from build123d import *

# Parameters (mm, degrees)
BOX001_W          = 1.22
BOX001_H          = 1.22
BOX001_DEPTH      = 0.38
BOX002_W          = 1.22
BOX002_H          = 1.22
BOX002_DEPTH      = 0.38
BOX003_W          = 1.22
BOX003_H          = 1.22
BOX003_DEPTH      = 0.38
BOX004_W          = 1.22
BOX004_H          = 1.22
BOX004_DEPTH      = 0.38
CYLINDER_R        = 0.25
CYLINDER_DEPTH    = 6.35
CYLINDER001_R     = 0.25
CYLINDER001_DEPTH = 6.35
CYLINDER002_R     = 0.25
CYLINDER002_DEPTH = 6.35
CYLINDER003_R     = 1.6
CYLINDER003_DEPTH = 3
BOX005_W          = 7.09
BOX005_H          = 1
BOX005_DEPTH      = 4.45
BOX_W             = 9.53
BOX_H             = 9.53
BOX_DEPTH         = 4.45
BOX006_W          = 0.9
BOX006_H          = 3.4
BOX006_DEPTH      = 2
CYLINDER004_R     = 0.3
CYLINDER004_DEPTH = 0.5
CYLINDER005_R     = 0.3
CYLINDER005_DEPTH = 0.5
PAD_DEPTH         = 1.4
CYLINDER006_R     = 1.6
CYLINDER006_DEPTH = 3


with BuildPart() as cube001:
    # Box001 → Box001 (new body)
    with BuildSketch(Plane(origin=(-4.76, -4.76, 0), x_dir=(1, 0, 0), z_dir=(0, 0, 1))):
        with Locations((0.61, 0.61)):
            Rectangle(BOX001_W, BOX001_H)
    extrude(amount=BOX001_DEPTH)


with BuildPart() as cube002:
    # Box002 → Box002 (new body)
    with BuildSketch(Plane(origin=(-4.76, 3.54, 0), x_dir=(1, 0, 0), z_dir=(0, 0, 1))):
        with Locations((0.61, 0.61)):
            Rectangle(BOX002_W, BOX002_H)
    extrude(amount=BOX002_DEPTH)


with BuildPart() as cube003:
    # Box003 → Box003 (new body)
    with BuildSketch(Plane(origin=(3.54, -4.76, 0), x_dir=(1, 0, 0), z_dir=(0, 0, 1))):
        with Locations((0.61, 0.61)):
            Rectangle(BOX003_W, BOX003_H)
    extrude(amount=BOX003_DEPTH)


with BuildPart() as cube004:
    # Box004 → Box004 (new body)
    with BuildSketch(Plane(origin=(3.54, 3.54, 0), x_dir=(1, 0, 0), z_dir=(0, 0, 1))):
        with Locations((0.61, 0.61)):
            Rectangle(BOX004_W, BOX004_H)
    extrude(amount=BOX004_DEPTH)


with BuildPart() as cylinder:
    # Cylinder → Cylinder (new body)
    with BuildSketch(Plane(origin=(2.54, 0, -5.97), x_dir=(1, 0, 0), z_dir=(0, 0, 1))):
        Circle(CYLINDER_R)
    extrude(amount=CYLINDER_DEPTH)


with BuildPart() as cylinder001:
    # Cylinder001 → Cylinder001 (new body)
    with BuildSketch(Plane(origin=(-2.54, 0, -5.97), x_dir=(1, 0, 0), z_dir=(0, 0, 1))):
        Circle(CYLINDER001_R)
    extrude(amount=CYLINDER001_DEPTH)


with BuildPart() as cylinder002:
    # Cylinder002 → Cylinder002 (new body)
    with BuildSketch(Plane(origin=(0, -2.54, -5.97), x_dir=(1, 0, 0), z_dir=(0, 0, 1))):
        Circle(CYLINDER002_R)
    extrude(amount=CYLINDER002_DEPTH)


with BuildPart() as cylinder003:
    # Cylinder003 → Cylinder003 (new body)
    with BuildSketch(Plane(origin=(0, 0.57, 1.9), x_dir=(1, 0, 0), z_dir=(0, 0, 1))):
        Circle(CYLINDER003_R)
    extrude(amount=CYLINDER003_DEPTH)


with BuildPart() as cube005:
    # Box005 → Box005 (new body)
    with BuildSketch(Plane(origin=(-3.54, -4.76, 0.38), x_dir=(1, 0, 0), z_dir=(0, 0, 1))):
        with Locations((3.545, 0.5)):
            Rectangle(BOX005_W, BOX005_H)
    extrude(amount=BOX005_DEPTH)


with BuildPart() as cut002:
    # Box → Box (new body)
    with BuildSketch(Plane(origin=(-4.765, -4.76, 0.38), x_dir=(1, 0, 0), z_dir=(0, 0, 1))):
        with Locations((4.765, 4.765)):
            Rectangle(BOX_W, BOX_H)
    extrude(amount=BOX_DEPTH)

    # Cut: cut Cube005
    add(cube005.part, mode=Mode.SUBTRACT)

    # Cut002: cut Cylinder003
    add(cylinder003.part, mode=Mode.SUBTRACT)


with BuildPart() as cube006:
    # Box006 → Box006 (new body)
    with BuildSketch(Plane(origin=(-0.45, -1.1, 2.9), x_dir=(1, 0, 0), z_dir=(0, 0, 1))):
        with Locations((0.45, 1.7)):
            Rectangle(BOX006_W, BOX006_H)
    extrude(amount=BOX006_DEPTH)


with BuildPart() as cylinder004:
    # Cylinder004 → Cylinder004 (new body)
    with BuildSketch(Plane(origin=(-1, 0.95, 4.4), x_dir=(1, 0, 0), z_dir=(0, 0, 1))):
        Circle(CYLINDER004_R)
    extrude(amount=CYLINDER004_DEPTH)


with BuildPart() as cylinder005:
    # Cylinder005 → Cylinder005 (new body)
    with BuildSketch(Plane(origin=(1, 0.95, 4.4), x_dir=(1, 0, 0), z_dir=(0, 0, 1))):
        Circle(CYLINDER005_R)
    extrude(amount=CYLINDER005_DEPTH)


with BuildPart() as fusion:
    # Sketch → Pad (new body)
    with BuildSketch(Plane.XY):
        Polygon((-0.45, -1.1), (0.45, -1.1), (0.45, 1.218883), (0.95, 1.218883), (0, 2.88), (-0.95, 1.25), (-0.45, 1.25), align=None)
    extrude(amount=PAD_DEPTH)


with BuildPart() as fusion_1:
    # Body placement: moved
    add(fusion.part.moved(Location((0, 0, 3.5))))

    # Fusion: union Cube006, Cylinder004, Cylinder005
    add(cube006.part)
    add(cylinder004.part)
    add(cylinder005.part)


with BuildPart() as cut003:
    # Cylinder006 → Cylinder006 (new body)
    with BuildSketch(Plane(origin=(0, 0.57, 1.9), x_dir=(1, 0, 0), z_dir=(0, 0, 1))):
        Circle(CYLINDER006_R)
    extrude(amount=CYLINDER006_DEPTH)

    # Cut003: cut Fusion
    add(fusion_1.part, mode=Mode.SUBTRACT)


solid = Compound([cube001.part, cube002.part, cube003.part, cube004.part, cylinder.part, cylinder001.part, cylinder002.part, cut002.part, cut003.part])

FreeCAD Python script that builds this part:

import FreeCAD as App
import Part
import Sketcher

V = App.Vector


def add_polygon(sketch, points):
    """Adds a closed chain of lines whose ends are joined by coincident constraints."""
    first, n = sketch.GeometryCount, len(points)
    for a, b in zip(points, points[1:] + points[:1]):
        sketch.addGeometry(Part.LineSegment(App.Vector(*a, 0), App.Vector(*b, 0)), False)
    for i in range(n):
        sketch.addConstraint(Sketcher.Constraint("Coincident", first + i, 2, first + (i + 1) % n, 1))

doc = App.newDocument("Part")
body = doc.addObject("PartDesign::Body", "Body")

sketch1 = body.newObject("Sketcher::SketchObject", "Sketch")
sketch1.AttachmentSupport = (doc.getObject("XY_Plane"), [""])
sketch1.MapMode = "FlatFace"
add_polygon(sketch1, [(-4.8, -3.5), (-4.8, -4.8), (-3.5, -4.8), (-3.5, -3.5)])
sketch1.addConstraint(Sketcher.Constraint("Vertical", 0))
sketch1.addConstraint(Sketcher.Constraint("Horizontal", 1))
sketch1.addConstraint(Sketcher.Constraint("Vertical", 2))
sketch1.addConstraint(Sketcher.Constraint("Horizontal", 3))
sketch1.addConstraint(Sketcher.Constraint("Equal", 3, 0))
sketch1.addConstraint(Sketcher.Constraint("DistanceX", 1, 1, 1, 2, 1.22))
sketch1.addConstraint(Sketcher.Constraint("DistanceX", 0, 2, -1, 1, 4.76))
sketch1.addConstraint(Sketcher.Constraint("DistanceY", 0, 2, -1, 1, 4.76))
pad1 = body.newObject("PartDesign::Pad", "Pad")
pad1.Profile = sketch1
pad1.Length = 0.38
body2 = doc.addObject("PartDesign::Body", "Body001")

sketch2 = body2.newObject("Sketcher::SketchObject", "Sketch001")
sketch2.AttachmentSupport = (doc.getObject("XY_Plane001"), [""])
sketch2.MapMode = "FlatFace"
add_polygon(sketch2, [(-4.8, 4.8), (-4.8, 3.5), (-3.5, 3.5), (-3.5, 4.8)])
sketch2.addConstraint(Sketcher.Constraint("Vertical", 0))
sketch2.addConstraint(Sketcher.Constraint("Horizontal", 1))
sketch2.addConstraint(Sketcher.Constraint("Vertical", 2))
sketch2.addConstraint(Sketcher.Constraint("Horizontal", 3))
sketch2.addConstraint(Sketcher.Constraint("Equal", 3, 0))
sketch2.addConstraint(Sketcher.Constraint("DistanceX", 1, 1, 1, 2, 1.22))
sketch2.addConstraint(Sketcher.Constraint("DistanceX", 0, 2, -1, 1, 4.76))
sketch2.addConstraint(Sketcher.Constraint("DistanceY", -1, 1, 0, 2, 3.54))
pad2 = body2.newObject("PartDesign::Pad", "Pad001")
pad2.Profile = sketch2
pad2.Length = 0.38
body3 = doc.addObject("PartDesign::Body", "Body002")

sketch3 = body3.newObject("Sketcher::SketchObject", "Sketch002")
sketch3.AttachmentSupport = (doc.getObject("XY_Plane002"), [""])
sketch3.MapMode = "FlatFace"
add_polygon(sketch3, [(3.5, -3.5), (3.5, -4.8), (4.8, -4.8), (4.8, -3.5)])
sketch3.addConstraint(Sketcher.Constraint("Vertical", 0))
sketch3.addConstraint(Sketcher.Constraint("Horizontal", 1))
sketch3.addConstraint(Sketcher.Constraint("Vertical", 2))
sketch3.addConstraint(Sketcher.Constraint("Horizontal", 3))
sketch3.addConstraint(Sketcher.Constraint("Equal", 3, 0))
sketch3.addConstraint(Sketcher.Constraint("DistanceX", 1, 1, 1, 2, 1.22))
sketch3.addConstraint(Sketcher.Constraint("DistanceX", -1, 1, 0, 2, 3.54))
sketch3.addConstraint(Sketcher.Constraint("DistanceY", 0, 2, -1, 1, 4.76))
pad3 = body3.newObject("PartDesign::Pad", "Pad002")
pad3.Profile = sketch3
pad3.Length = 0.38
body4 = doc.addObject("PartDesign::Body", "Body003")

sketch4 = body4.newObject("Sketcher::SketchObject", "Sketch003")
sketch4.AttachmentSupport = (doc.getObject("XY_Plane003"), [""])
sketch4.MapMode = "FlatFace"
add_polygon(sketch4, [(3.5, 4.8), (3.5, 3.5), (4.8, 3.5), (4.8, 4.8)])
sketch4.addConstraint(Sketcher.Constraint("Vertical", 0))
sketch4.addConstraint(Sketcher.Constraint("Horizontal", 1))
sketch4.addConstraint(Sketcher.Constraint("Vertical", 2))
sketch4.addConstraint(Sketcher.Constraint("Horizontal", 3))
sketch4.addConstraint(Sketcher.Constraint("Equal", 3, 0))
sketch4.addConstraint(Sketcher.Constraint("DistanceX", 1, 1, 1, 2, 1.22))
sketch4.addConstraint(Sketcher.Constraint("DistanceX", -1, 1, 0, 2, 3.54))
sketch4.addConstraint(Sketcher.Constraint("DistanceY", -1, 1, 0, 2, 3.54))
pad4 = body4.newObject("PartDesign::Pad", "Pad003")
pad4.Profile = sketch4
pad4.Length = 0.38
body5 = doc.addObject("PartDesign::Body", "Body004")

sketch5 = body5.newObject("Sketcher::SketchObject", "Sketch004")
sketch5.AttachmentSupport = (doc.getObject("XY_Plane004"), [""])
sketch5.MapMode = "FlatFace"
sketch5.AttachmentOffset = App.Placement(V(0, 0, -5.97), App.Rotation())
sketch5.addGeometry(Part.Circle(V(2.54, 0, 0), V(0, 0, 1), 0.25), False)
sketch5.addConstraint(Sketcher.Constraint("PointOnObject", 0, 3, -1))
sketch5.addConstraint(Sketcher.Constraint("Diameter", 0, 0.5))
sketch5.addConstraint(Sketcher.Constraint("DistanceX", -1, 1, 0, 3, 2.54))
pad5 = body5.newObject("PartDesign::Pad", "Pad004")
pad5.Profile = sketch5
pad5.Length = 6.35
body6 = doc.addObject("PartDesign::Body", "Body005")

sketch6 = body6.newObject("Sketcher::SketchObject", "Sketch005")
sketch6.AttachmentSupport = (doc.getObject("XY_Plane005"), [""])
sketch6.MapMode = "FlatFace"
sketch6.AttachmentOffset = App.Placement(V(0, 0, -5.97), App.Rotation())
sketch6.addGeometry(Part.Circle(V(-2.54, 0, 0), V(0, 0, 1), 0.25), False)
sketch6.addConstraint(Sketcher.Constraint("PointOnObject", 0, 3, -1))
sketch6.addConstraint(Sketcher.Constraint("Diameter", 0, 0.5))
sketch6.addConstraint(Sketcher.Constraint("DistanceX", 0, 3, -1, 1, 2.54))
pad6 = body6.newObject("PartDesign::Pad", "Pad005")
pad6.Profile = sketch6
pad6.Length = 6.35
body7 = doc.addObject("PartDesign::Body", "Body006")

sketch7 = body7.newObject("Sketcher::SketchObject", "Sketch006")
sketch7.AttachmentSupport = (doc.getObject("XY_Plane006"), [""])
sketch7.MapMode = "FlatFace"
sketch7.AttachmentOffset = App.Placement(V(0, 0, -5.97), App.Rotation())
sketch7.addGeometry(Part.Circle(V(0, -2.54, 0), V(0, 0, 1), 0.25), False)
sketch7.addConstraint(Sketcher.Constraint("PointOnObject", 0, 3, -2))
sketch7.addConstraint(Sketcher.Constraint("Diameter", 0, 0.5))
sketch7.addConstraint(Sketcher.Constraint("DistanceY", 0, 3, -1, 1, 2.54))
pad7 = body7.newObject("PartDesign::Pad", "Pad006")
pad7.Profile = sketch7
pad7.Length = 6.35
body8 = doc.addObject("PartDesign::Body", "Body007")

sketch8 = body8.newObject("Sketcher::SketchObject", "Sketch007")
sketch8.AttachmentSupport = (doc.getObject("XY_Plane007"), [""])
sketch8.MapMode = "FlatFace"
sketch8.AttachmentOffset = App.Placement(V(0, 0, 1.9), App.Rotation())
sketch8.addGeometry(Part.Circle(V(0, 0.6, 0), V(0, 0, 1), 1.6), False)
sketch8.addConstraint(Sketcher.Constraint("PointOnObject", 0, 3, -2))
sketch8.addConstraint(Sketcher.Constraint("Diameter", 0, 3.2))
sketch8.addConstraint(Sketcher.Constraint("DistanceY", -1, 1, 0, 3, 0.57))
pad8 = body8.newObject("PartDesign::Pad", "Pad007")
pad8.Profile = sketch8
pad8.Length = 3
body9 = doc.addObject("PartDesign::Body", "Body008")

sketch9 = body9.newObject("Sketcher::SketchObject", "Sketch008")
sketch9.AttachmentSupport = (doc.getObject("XY_Plane008"), [""])
sketch9.MapMode = "FlatFace"
sketch9.AttachmentOffset = App.Placement(V(0, 0, 0.38), App.Rotation())
add_polygon(sketch9, [(-3.5, -3.8), (-3.5, -4.8), (3.5, -4.8), (3.5, -3.8)])
sketch9.addConstraint(Sketcher.Constraint("Vertical", 0))
sketch9.addConstraint(Sketcher.Constraint("Horizontal", 1))
sketch9.addConstraint(Sketcher.Constraint("Vertical", 2))
sketch9.addConstraint(Sketcher.Constraint("Horizontal", 3))
sketch9.addConstraint(Sketcher.Constraint("DistanceY", 0, 2, 0, 1, 1.0))
sketch9.addConstraint(Sketcher.Constraint("DistanceX", 1, 1, 1, 2, 7.09))
sketch9.addConstraint(Sketcher.Constraint("DistanceX", 0, 2, -1, 1, 3.54))
sketch9.addConstraint(Sketcher.Constraint("DistanceY", 0, 2, -1, 1, 4.76))
pad9 = body9.newObject("PartDesign::Pad", "Pad008")
pad9.Profile = sketch9
pad9.Length = 4.45
body10 = doc.addObject("PartDesign::Body", "Body009")

sketch10 = body10.newObject("Sketcher::SketchObject", "Sketch009")
sketch10.AttachmentSupport = (doc.getObject("XY_Plane009"), [""])
sketch10.MapMode = "FlatFace"
sketch10.AttachmentOffset = App.Placement(V(0, 0, 0.38), App.Rotation())
add_polygon(sketch10, [(-5, 5), (-5, -5), (5, -5), (5, 5)])
sketch10.addConstraint(Sketcher.Constraint("Vertical", 0))
sketch10.addConstraint(Sketcher.Constraint("Horizontal", 1))
sketch10.addConstraint(Sketcher.Constraint("Vertical", 2))
sketch10.addConstraint(Sketcher.Constraint("Horizontal", 3))
sketch10.addConstraint(Sketcher.Constraint("Equal", 3, 0))
sketch10.addConstraint(Sketcher.Constraint("DistanceX", 1, 1, 1, 2, 9.53))
sketch10.addConstraint(Sketcher.Constraint("DistanceY", 0, 2, -1, 1, 4.76))
sketch10.addConstraint(Sketcher.Constraint("DistanceX", 0, 2, -1, 1, 4.765))
pad10 = body10.newObject("PartDesign::Pad", "Pad009")
pad10.Profile = sketch10
pad10.Length = 4.45
doc.recompute()

boolean = body10.newObject("PartDesign::Boolean", "Boolean")
boolean.Type = "Cut"
boolean.addObjects([body9])
doc.recompute()

boolean2 = body10.newObject("PartDesign::Boolean", "Boolean001")
boolean2.Type = "Cut"
boolean2.addObjects([body8])
body11 = doc.addObject("PartDesign::Body", "Body010")

sketch11 = body11.newObject("Sketcher::SketchObject", "Sketch010")
sketch11.AttachmentSupport = (doc.getObject("XY_Plane010"), [""])
sketch11.MapMode = "FlatFace"
sketch11.AttachmentOffset = App.Placement(V(0, 0, 2.9), App.Rotation())
add_polygon(sketch11, [(-0.5, 2.3), (-0.5, -1.1), (0.5, -1.1), (0.5, 2.3)])
sketch11.addConstraint(Sketcher.Constraint("Vertical", 0))
sketch11.addConstraint(Sketcher.Constraint("Horizontal", 1))
sketch11.addConstraint(Sketcher.Constraint("Vertical", 2))
sketch11.addConstraint(Sketcher.Constraint("Horizontal", 3))
sketch11.addConstraint(Sketcher.Constraint("DistanceX", 1, 1, 1, 2, 0.9))
sketch11.addConstraint(Sketcher.Constraint("DistanceY", 0, 2, 0, 1, 3.4))
sketch11.addConstraint(Sketcher.Constraint("DistanceY", 0, 2, -1, 1, 1.1))
sketch11.addConstraint(Sketcher.Constraint("DistanceX", 0, 2, -1, 1, 0.45))
pad11 = body11.newObject("PartDesign::Pad", "Pad010")
pad11.Profile = sketch11
pad11.Length = 2
body12 = doc.addObject("PartDesign::Body", "Body011")

sketch12 = body12.newObject("Sketcher::SketchObject", "Sketch011")
sketch12.AttachmentSupport = (doc.getObject("XY_Plane011"), [""])
sketch12.MapMode = "FlatFace"
sketch12.AttachmentOffset = App.Placement(V(0, 0, 4.4), App.Rotation())
sketch12.addGeometry(Part.Circle(V(-1, 0.95, 0), V(0, 0, 1), 0.3), False)
sketch12.addConstraint(Sketcher.Constraint("Diameter", 0, 0.6))
sketch12.addConstraint(Sketcher.Constraint("DistanceX", 0, 3, -1, 1, 1.0))
sketch12.addConstraint(Sketcher.Constraint("DistanceY", -1, 1, 0, 3, 0.95))
pad12 = body12.newObject("PartDesign::Pad", "Pad011")
pad12.Profile = sketch12
pad12.Length = 0.5
body13 = doc.addObject("PartDesign::Body", "Body012")

sketch13 = body13.newObject("Sketcher::SketchObject", "Sketch012")
sketch13.AttachmentSupport = (doc.getObject("XY_Plane012"), [""])
sketch13.MapMode = "FlatFace"
sketch13.AttachmentOffset = App.Placement(V(0, 0, 4.4), App.Rotation())
sketch13.addGeometry(Part.Circle(V(1, 0.95, 0), V(0, 0, 1), 0.3), False)
sketch13.addConstraint(Sketcher.Constraint("Diameter", 0, 0.6))
sketch13.addConstraint(Sketcher.Constraint("DistanceX", -1, 1, 0, 3, 1.0))
sketch13.addConstraint(Sketcher.Constraint("DistanceY", -1, 1, 0, 3, 0.95))
pad13 = body13.newObject("PartDesign::Pad", "Pad012")
pad13.Profile = sketch13
pad13.Length = 0.5
body14 = doc.addObject("PartDesign::Body", "Body013")

sketch14 = body14.newObject("Sketcher::SketchObject", "Sketch013")
sketch14.AttachmentSupport = (doc.getObject("XY_Plane013"), [""])
sketch14.MapMode = "FlatFace"
add_polygon(sketch14, [(-0.45, -1.1), (0.45, -1.1), (0.45, 1.22), (0.95, 1.22), (0, 2.88), (-0.95, 1.25), (-0.45, 1.25)])
sketch14.addConstraint(Sketcher.Constraint("Horizontal", 0))
sketch14.addConstraint(Sketcher.Constraint("Vertical", 1))
sketch14.addConstraint(Sketcher.Constraint("Horizontal", 2))
sketch14.addConstraint(Sketcher.Constraint("Horizontal", 5))
sketch14.addConstraint(Sketcher.Constraint("Vertical", 6))
sketch14.addConstraint(Sketcher.Constraint("PointOnObject", 3, 2, -2))
sketch14.addConstraint(Sketcher.Constraint("Equal", 2, 5))
sketch14.addConstraint(Sketcher.Constraint("DistanceX", 0, 1, 0, 2, 0.9))
sketch14.addConstraint(Sketcher.Constraint("DistanceX", 2, 1, 2, 2, 0.5))
sketch14.addConstraint(Sketcher.Constraint("DistanceY", 6, 2, 6, 1, 2.35))
sketch14.addConstraint(Sketcher.Constraint("DistanceY", 0, 2, -1, 1, 1.1))
sketch14.addConstraint(Sketcher.Constraint("DistanceX", -1, 1, 0, 2, 0.45))
sketch14.addConstraint(Sketcher.Constraint("DistanceY", -1, 1, 3, 2, 2.88))
sketch14.addConstraint(Sketcher.Constraint("DistanceY", 1, 1, 1, 2, 2.318883))
pad14 = body14.newObject("PartDesign::Pad", "Pad013")
pad14.Profile = sketch14
pad14.Length = 1.4
body15 = doc.addObject("PartDesign::Body", "Body014")
body15.AllowCompound = True
doc.recompute()

body14.Placement = App.Placement(V(0, 0, 3.5), App.Rotation(V(0, 0, 1), 0))
boolean3 = body15.newObject("PartDesign::Boolean", "Boolean002")
boolean3.Type = "Fuse"
boolean3.addObjects([body14])
doc.recompute()

boolean4 = body15.newObject("PartDesign::Boolean", "Boolean003")
boolean4.Type = "Fuse"
boolean4.addObjects([body11])
doc.recompute()

boolean5 = body15.newObject("PartDesign::Boolean", "Boolean004")
boolean5.Type = "Fuse"
boolean5.addObjects([body12])
doc.recompute()

boolean6 = body15.newObject("PartDesign::Boolean", "Boolean005")
boolean6.Type = "Fuse"
boolean6.addObjects([body13])
body16 = doc.addObject("PartDesign::Body", "Body015")

sketch15 = body16.newObject("Sketcher::SketchObject", "Sketch014")
sketch15.AttachmentSupport = (doc.getObject("XY_Plane015"), [""])
sketch15.MapMode = "FlatFace"
sketch15.AttachmentOffset = App.Placement(V(0, 0, 1.9), App.Rotation())
sketch15.addGeometry(Part.Circle(V(0, 0.6, 0), V(0, 0, 1), 1.6), False)
sketch15.addConstraint(Sketcher.Constraint("PointOnObject", 0, 3, -2))
sketch15.addConstraint(Sketcher.Constraint("Diameter", 0, 3.2))
sketch15.addConstraint(Sketcher.Constraint("DistanceY", -1, 1, 0, 3, 0.57))
pad15 = body16.newObject("PartDesign::Pad", "Pad014")
pad15.Profile = sketch15
pad15.Length = 3
doc.recompute()

boolean7 = body16.newObject("PartDesign::Boolean", "Boolean006")
boolean7.Type = "Cut"
boolean7.addObjects([body15])

doc.recompute()
